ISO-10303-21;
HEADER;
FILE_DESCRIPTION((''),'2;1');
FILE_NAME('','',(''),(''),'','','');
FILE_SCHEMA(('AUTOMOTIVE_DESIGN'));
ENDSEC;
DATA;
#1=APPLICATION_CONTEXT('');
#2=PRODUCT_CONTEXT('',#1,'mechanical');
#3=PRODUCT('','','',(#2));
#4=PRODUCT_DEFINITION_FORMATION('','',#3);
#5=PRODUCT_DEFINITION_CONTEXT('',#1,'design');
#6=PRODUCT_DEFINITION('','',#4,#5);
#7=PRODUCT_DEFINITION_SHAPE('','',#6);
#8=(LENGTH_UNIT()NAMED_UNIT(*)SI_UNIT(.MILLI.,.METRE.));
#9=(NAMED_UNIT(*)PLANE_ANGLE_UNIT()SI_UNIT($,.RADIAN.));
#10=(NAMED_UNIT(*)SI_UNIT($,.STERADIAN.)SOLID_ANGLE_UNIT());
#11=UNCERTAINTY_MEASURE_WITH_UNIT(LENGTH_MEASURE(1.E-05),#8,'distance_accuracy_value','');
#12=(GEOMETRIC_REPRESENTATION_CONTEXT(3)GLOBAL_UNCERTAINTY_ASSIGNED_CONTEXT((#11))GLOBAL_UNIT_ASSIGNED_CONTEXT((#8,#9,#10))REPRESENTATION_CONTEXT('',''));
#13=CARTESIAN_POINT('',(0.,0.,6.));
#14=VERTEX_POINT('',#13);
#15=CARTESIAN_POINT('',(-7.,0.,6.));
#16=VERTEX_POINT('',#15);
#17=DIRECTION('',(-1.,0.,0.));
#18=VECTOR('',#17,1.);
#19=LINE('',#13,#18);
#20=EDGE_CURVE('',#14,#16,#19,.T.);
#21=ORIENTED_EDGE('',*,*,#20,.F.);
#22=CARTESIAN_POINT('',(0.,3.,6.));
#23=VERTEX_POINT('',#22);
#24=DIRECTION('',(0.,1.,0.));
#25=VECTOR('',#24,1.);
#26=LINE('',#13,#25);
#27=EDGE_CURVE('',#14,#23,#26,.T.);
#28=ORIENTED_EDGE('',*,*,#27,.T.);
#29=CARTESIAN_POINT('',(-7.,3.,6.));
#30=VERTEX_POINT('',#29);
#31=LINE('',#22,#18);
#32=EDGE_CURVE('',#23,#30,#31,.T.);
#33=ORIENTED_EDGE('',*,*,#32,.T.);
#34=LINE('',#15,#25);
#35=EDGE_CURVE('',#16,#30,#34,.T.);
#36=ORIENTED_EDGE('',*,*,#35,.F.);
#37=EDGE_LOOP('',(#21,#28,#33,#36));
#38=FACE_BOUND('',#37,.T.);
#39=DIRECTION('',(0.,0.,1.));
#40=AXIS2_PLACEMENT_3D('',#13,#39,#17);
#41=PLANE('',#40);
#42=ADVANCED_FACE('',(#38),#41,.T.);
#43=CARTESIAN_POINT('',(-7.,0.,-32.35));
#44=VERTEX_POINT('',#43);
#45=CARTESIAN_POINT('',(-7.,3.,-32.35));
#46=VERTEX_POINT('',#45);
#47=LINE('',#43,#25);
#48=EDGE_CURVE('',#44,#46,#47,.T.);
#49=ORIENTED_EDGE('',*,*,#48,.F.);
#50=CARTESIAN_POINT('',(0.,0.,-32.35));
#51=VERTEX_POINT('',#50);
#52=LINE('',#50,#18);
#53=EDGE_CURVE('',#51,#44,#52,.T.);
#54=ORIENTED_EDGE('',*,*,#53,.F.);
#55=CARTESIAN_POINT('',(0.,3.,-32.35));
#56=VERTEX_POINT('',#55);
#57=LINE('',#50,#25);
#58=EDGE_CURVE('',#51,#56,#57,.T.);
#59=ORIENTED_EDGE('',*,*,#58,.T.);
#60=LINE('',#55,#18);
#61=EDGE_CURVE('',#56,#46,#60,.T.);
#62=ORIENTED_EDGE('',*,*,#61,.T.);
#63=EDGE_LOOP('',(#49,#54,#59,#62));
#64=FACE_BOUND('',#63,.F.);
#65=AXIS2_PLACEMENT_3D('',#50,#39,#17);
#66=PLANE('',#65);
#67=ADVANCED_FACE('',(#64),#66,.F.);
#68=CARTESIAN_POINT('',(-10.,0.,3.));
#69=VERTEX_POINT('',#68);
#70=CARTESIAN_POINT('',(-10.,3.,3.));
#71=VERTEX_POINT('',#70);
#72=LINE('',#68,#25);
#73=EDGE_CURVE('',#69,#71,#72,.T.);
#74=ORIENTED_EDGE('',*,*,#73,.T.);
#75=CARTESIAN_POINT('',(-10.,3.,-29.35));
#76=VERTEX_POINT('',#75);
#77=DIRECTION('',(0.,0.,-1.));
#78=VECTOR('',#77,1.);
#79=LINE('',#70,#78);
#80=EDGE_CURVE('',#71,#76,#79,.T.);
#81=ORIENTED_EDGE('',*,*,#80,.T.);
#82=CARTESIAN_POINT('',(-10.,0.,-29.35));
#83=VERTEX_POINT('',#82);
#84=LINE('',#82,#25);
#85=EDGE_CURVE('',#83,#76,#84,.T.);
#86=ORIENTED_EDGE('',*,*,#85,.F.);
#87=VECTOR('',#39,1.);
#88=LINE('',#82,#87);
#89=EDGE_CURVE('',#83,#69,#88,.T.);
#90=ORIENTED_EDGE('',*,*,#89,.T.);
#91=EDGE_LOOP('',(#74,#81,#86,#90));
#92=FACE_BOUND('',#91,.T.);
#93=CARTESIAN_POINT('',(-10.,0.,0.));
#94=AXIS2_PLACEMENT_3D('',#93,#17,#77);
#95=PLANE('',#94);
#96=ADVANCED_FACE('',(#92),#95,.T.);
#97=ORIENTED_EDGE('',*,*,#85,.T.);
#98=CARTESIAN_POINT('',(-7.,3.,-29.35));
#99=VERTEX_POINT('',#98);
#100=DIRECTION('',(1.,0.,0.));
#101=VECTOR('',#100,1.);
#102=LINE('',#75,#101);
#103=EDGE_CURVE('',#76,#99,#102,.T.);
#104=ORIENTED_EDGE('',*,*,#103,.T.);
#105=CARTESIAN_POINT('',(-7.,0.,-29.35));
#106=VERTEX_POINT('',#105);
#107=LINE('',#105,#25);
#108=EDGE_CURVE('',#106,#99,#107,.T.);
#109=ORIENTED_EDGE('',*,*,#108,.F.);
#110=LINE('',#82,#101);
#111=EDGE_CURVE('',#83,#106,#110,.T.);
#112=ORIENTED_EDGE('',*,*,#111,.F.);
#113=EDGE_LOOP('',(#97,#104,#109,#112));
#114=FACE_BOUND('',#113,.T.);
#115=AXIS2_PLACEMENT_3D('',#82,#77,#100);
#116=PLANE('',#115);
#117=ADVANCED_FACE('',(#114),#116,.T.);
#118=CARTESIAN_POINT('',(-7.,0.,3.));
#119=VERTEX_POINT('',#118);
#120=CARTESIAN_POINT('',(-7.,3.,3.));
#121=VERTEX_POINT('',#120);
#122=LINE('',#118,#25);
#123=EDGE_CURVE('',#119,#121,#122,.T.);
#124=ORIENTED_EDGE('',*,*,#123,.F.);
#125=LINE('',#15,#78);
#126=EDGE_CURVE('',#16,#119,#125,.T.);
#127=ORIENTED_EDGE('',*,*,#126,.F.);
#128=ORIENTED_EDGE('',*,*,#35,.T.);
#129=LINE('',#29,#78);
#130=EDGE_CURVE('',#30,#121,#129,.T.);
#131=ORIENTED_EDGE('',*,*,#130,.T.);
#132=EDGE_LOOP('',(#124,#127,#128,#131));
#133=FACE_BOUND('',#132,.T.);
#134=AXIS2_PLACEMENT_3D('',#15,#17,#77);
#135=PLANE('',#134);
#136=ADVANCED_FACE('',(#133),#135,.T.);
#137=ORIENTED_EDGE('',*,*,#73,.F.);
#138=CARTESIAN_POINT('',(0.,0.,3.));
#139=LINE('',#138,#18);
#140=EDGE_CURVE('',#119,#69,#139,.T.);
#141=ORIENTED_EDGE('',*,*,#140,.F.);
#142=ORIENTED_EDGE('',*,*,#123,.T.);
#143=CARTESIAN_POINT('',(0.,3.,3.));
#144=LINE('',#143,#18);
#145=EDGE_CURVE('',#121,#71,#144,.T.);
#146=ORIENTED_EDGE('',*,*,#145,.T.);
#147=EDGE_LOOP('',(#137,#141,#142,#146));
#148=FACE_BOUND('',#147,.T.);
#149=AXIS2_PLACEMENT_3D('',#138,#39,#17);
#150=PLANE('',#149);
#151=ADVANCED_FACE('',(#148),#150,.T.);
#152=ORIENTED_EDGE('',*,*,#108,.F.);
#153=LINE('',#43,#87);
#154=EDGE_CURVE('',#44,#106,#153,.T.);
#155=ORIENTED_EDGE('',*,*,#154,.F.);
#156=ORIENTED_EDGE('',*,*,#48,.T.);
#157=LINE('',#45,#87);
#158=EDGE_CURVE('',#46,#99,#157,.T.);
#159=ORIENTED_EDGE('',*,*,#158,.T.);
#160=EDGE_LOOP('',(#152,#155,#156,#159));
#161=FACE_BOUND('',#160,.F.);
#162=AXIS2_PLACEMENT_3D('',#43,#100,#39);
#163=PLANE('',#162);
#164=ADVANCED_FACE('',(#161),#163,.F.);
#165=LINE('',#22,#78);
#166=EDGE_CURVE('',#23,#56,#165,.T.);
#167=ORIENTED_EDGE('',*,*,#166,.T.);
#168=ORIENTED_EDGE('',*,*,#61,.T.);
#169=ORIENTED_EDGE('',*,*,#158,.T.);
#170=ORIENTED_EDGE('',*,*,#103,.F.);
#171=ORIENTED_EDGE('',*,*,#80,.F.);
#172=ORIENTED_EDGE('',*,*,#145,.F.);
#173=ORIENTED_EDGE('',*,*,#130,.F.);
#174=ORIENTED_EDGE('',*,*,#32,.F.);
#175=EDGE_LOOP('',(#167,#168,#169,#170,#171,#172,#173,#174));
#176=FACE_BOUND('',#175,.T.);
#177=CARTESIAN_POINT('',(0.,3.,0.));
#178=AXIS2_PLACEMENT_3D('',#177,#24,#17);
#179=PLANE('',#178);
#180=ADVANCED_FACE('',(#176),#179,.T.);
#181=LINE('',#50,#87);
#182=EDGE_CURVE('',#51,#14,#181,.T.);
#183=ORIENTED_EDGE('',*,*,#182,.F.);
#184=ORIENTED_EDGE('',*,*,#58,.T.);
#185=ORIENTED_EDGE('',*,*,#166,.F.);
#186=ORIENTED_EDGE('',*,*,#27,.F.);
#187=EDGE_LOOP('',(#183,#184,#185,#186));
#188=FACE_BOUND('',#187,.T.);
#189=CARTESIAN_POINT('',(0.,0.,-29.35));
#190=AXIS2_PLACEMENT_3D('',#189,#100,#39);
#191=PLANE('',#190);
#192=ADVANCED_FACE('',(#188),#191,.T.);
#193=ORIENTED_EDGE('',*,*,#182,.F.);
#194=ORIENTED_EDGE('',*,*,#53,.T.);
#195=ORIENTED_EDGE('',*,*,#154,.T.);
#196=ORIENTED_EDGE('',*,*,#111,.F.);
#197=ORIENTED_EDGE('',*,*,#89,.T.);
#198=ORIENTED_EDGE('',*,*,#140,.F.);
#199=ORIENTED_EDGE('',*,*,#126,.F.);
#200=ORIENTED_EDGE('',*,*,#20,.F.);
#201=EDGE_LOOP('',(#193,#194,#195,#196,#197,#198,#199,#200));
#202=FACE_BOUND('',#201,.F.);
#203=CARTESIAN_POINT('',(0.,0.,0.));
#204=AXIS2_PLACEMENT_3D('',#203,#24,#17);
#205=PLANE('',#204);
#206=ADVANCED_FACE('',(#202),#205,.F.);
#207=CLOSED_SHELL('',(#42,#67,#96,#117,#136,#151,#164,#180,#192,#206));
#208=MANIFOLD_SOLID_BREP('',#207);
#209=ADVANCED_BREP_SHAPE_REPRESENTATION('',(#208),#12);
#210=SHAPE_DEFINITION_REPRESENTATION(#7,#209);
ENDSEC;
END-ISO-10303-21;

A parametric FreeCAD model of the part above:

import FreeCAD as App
import Part
import Sketcher


def add_polygon(sketch, points):
    """Adds a closed chain of lines whose ends are joined by coincident constraints."""
    first, n = sketch.GeometryCount, len(points)
    for a, b in zip(points, points[1:] + points[:1]):
        sketch.addGeometry(Part.LineSegment(App.Vector(*a, 0), App.Vector(*b, 0)), False)
    for i in range(n):
        sketch.addConstraint(Sketcher.Constraint("Coincident", first + i, 2, first + (i + 1) % n, 1))

doc = App.newDocument("Part")
body = doc.addObject("PartDesign::Body", "Body")

sketch1 = body.newObject("Sketcher::SketchObject", "Sketch")
sketch1.AttachmentSupport = (doc.getObject("XZ_Plane"), [""])
sketch1.MapMode = "FlatFace"
add_polygon(sketch1, [(-10, -29), (-10, 3), (0, 3), (0, -29)])
sketch1.addConstraint([
    Sketcher.Constraint("Vertical", 0),
    Sketcher.Constraint("Horizontal", 1),
    Sketcher.Constraint("Vertical", 2),
    Sketcher.Constraint("Horizontal", 3),
    Sketcher.Constraint("PointOnObject", 1, 2, -2),
    Sketcher.Constraint("DistanceX", 1, 1, 1, 2, 10.0),
    Sketcher.Constraint("DistanceY", -1, 1, 0, 2, 3.0),
    Sketcher.Constraint("DistanceY", 0, 1, 0, 2, 32.35),
])
pad1 = body.newObject("PartDesign::Pad", "Pad")
pad1.Profile = sketch1
pad1.Length = 3
pad1.Reversed = True

sketch2 = body.newObject("Sketcher::SketchObject", "Sketch001")
sketch2.AttachmentSupport = (doc.getObject("XZ_Plane"), [""])
sketch2.MapMode = "FlatFace"
add_polygon(sketch2, [(-7, 3), (0, 3), (0, 6), (-7, 6)])
add_polygon(sketch2, [(0, -32.4), (0, -29.4), (-7, -29.4), (-7, -32.4)])
sketch2.addConstraint([
    Sketcher.Constraint("Horizontal", 0),
    Sketcher.Constraint("Vertical", 1),
    Sketcher.Constraint("Horizontal", 2),
    Sketcher.Constraint("Vertical", 3),
    Sketcher.Constraint("Vertical", 4),
    Sketcher.Constraint("Horizontal", 5),
    Sketcher.Constraint("Vertical", 6),
    Sketcher.Constraint("Horizontal", 7),
    Sketcher.Constraint("PointOnObject", 0, 2, -2),
    Sketcher.Constraint("PointOnObject", 4, 2, -2),
    Sketcher.Constraint("Vertical", 3, 2, 5, 2),
    Sketcher.Constraint("Equal", 3, 4),
    Sketcher.Constraint("DistanceX", 0, 1, 0, 2, 7.0),
    Sketcher.Constraint("DistanceY", 1, 1, 1, 2, 3.0),
    Sketcher.Constraint("DistanceY", -1, 1, 0, 2, 3.0),
    Sketcher.Constraint("DistanceY", 4, 2, -1, 1, 29.35),
])
pad2 = body.newObject("PartDesign::Pad", "Pad001")
pad2.Profile = sketch2
pad2.Length = 3
pad2.Reversed = True

doc.recompute()
